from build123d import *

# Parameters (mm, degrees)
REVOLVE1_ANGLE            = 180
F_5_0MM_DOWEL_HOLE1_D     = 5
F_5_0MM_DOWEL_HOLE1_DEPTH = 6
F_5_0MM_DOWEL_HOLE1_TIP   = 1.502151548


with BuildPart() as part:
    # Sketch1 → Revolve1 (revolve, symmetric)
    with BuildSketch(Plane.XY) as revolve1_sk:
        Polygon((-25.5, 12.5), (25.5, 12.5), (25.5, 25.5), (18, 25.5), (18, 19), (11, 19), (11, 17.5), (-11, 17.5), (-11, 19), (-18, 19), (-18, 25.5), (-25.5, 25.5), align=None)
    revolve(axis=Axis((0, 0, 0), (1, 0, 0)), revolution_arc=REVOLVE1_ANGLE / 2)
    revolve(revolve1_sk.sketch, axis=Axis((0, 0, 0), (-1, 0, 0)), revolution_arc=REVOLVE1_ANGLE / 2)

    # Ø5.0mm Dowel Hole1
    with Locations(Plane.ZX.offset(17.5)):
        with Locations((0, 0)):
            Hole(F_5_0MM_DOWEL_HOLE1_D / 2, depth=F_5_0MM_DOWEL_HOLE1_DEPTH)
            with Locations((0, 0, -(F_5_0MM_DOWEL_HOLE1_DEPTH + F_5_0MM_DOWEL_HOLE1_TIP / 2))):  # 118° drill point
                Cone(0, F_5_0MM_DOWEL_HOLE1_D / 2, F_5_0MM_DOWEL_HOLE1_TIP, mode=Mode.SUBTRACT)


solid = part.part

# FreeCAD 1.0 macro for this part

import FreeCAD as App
import Part
import Sketcher

V = App.Vector

doc = App.newDocument("Part")
body = doc.addObject("PartDesign::Body", "Body")

# Sketch on XY plane
sketch1 = body.newObject("Sketcher::SketchObject", "Sketch")
sketch1.AttachmentSupport = (doc.getObject("XY_Plane"), [""])
sketch1.MapMode = "FlatFace"
sketch1.addGeometry(Part.LineSegment(V(-25.5, 12.5, 0), V(25.5, 12.5, 0)), False)
sketch1.addGeometry(Part.LineSegment(V(25.5, 12.5, 0), V(25.5, 25.5, 0)), False)
sketch1.addGeometry(Part.LineSegment(V(25.5, 25.5, 0), V(18, 25.5, 0)), False)
sketch1.addGeometry(Part.LineSegment(V(18, 25.5, 0), V(18, 19, 0)), False)
sketch1.addGeometry(Part.LineSegment(V(18, 19, 0), V(11, 19, 0)), False)
sketch1.addGeometry(Part.LineSegment(V(11, 19, 0), V(11, 17.5, 0)), False)
sketch1.addGeometry(Part.LineSegment(V(11, 17.5, 0), V(-11, 17.5, 0)), False)
sketch1.addGeometry(Part.LineSegment(V(-11, 17.5, 0), V(-11, 19, 0)), False)
sketch1.addGeometry(Part.LineSegment(V(-11, 19, 0), V(-18, 19, 0)), False)
sketch1.addGeometry(Part.LineSegment(V(-18, 19, 0), V(-18, 25.5, 0)), False)
sketch1.addGeometry(Part.LineSegment(V(-18, 25.5, 0), V(-25.5, 25.5, 0)), False)
sketch1.addGeometry(Part.LineSegment(V(-25.5, 25.5, 0), V(-25.5, 12.5, 0)), False)
sketch1.addConstraint(Sketcher.Constraint("Coincident", 0, 2, 1, 1))
sketch1.addConstraint(Sketcher.Constraint("Coincident", 1, 2, 2, 1))
sketch1.addConstraint(Sketcher.Constraint("Coincident", 2, 2, 3, 1))
sketch1.addConstraint(Sketcher.Constraint("Coincident", 3, 2, 4, 1))
sketch1.addConstraint(Sketcher.Constraint("Coincident", 4, 2, 5, 1))
sketch1.addConstraint(Sketcher.Constraint("Coincident", 5, 2, 6, 1))
sketch1.addConstraint(Sketcher.Constraint("Coincident", 6, 2, 7, 1))
sketch1.addConstraint(Sketcher.Constraint("Coincident", 7, 2, 8, 1))
sketch1.addConstraint(Sketcher.Constraint("Coincident", 8, 2, 9, 1))
sketch1.addConstraint(Sketcher.Constraint("Coincident", 9, 2, 10, 1))
sketch1.addConstraint(Sketcher.Constraint("Coincident", 10, 2, 11, 1))
sketch1.addConstraint(Sketcher.Constraint("Coincident", 11, 2, 0, 1))
sketch1.addConstraint(Sketcher.Constraint("Horizontal", 0))
sketch1.addConstraint(Sketcher.Constraint("Vertical", 1))
sketch1.addConstraint(Sketcher.Constraint("Horizontal", 2))
sketch1.addConstraint(Sketcher.Constraint("Vertical", 3))
sketch1.addConstraint(Sketcher.Constraint("Horizontal", 4))
sketch1.addConstraint(Sketcher.Constraint("Vertical", 5))
sketch1.addConstraint(Sketcher.Constraint("Horizontal", 6))
sketch1.addConstraint(Sketcher.Constraint("Vertical", 7))
sketch1.addConstraint(Sketcher.Constraint("Horizontal", 8))
sketch1.addConstraint(Sketcher.Constraint("Vertical", 9))
sketch1.addConstraint(Sketcher.Constraint("Horizontal", 10))
sketch1.addConstraint(Sketcher.Constraint("Vertical", 11))
sketch1.addConstraint(Sketcher.Constraint("Symmetric", 4, 2, 7, 2, -2))
sketch1.addConstraint(Sketcher.Constraint("Symmetric", 2, 2, 9, 2, -2))
sketch1.addConstraint(Sketcher.Constraint("Equal", 2, 10))
sketch1.addConstraint(Sketcher.Constraint("DistanceX", 0, 1, 0, 2, 51.0))
sketch1.addConstraint(Sketcher.Constraint("DistanceX", 4, 2, 4, 1, 7.0))
sketch1.addConstraint(Sketcher.Constraint("DistanceX", 6, 2, 6, 1, 22.0))
sketch1.addConstraint(Sketcher.Constraint("DistanceY", 1, 1, 1, 2, 13.0))
sketch1.addConstraint(Sketcher.Constraint("DistanceY", 3, 2, 3, 1, 6.5))
sketch1.addConstraint(Sketcher.Constraint("DistanceY", 5, 2, 5, 1, 1.5))
sketch1.addConstraint(Sketcher.Constraint("DistanceY", -1, 1, 3, 2, 19.0))
revolution = body.newObject("PartDesign::Revolution", "Revolution")
revolution.Profile = sketch1
revolution.ReferenceAxis = (sketch1, ["H_Axis"])
revolution.Angle = 90

# Sketch on XY plane
sketch2 = body.newObject("Sketcher::SketchObject", "Sketch001")
sketch2.AttachmentSupport = (doc.getObject("XY_Plane"), [""])
sketch2.MapMode = "FlatFace"
sketch2.addGeometry(Part.LineSegment(V(-25.5, 12.5, 0), V(25.5, 12.5, 0)), False)
sketch2.addGeometry(Part.LineSegment(V(25.5, 12.5, 0), V(25.5, 25.5, 0)), False)
sketch2.addGeometry(Part.LineSegment(V(25.5, 25.5, 0), V(18, 25.5, 0)), False)
sketch2.addGeometry(Part.LineSegment(V(18, 25.5, 0), V(18, 19, 0)), False)
sketch2.addGeometry(Part.LineSegment(V(18, 19, 0), V(11, 19, 0)), False)
sketch2.addGeometry(Part.LineSegment(V(11, 19, 0), V(11, 17.5, 0)), False)
sketch2.addGeometry(Part.LineSegment(V(11, 17.5, 0), V(-11, 17.5, 0)), False)
sketch2.addGeometry(Part.LineSegment(V(-11, 17.5, 0), V(-11, 19, 0)), False)
sketch2.addGeometry(Part.LineSegment(V(-11, 19, 0), V(-18, 19, 0)), False)
sketch2.addGeometry(Part.LineSegment(V(-18, 19, 0), V(-18, 25.5, 0)), False)
sketch2.addGeometry(Part.LineSegment(V(-18, 25.5, 0), V(-25.5, 25.5, 0)), False)
sketch2.addGeometry(Part.LineSegment(V(-25.5, 25.5, 0), V(-25.5, 12.5, 0)), False)
sketch2.addConstraint(Sketcher.Constraint("Coincident", 0, 2, 1, 1))
sketch2.addConstraint(Sketcher.Constraint("Coincident", 1, 2, 2, 1))
sketch2.addConstraint(Sketcher.Constraint("Coincident", 2, 2, 3, 1))
sketch2.addConstraint(Sketcher.Constraint("Coincident", 3, 2, 4, 1))
sketch2.addConstraint(Sketcher.Constraint("Coincident", 4, 2, 5, 1))
sketch2.addConstraint(Sketcher.Constraint("Coincident", 5, 2, 6, 1))
sketch2.addConstraint(Sketcher.Constraint("Coincident", 6, 2, 7, 1))
sketch2.addConstraint(Sketcher.Constraint("Coincident", 7, 2, 8, 1))
sketch2.addConstraint(Sketcher.Constraint("Coincident", 8, 2, 9, 1))
sketch2.addConstraint(Sketcher.Constraint("Coincident", 9, 2, 10, 1))
sketch2.addConstraint(Sketcher.Constraint("Coincident", 10, 2, 11, 1))
sketch2.addConstraint(Sketcher.Constraint("Coincident", 11, 2, 0, 1))
sketch2.addConstraint(Sketcher.Constraint("Horizontal", 0))
sketch2.addConstraint(Sketcher.Constraint("Vertical", 1))
sketch2.addConstraint(Sketcher.Constraint("Horizontal", 2))
sketch2.addConstraint(Sketcher.Constraint("Vertical", 3))
sketch2.addConstraint(Sketcher.Constraint("Horizontal", 4))
sketch2.addConstraint(Sketcher.Constraint("Vertical", 5))
sketch2.addConstraint(Sketcher.Constraint("Horizontal", 6))
sketch2.addConstraint(Sketcher.Constraint("Vertical", 7))
sketch2.addConstraint(Sketcher.Constraint("Horizontal", 8))
sketch2.addConstraint(Sketcher.Constraint("Vertical", 9))
sketch2.addConstraint(Sketcher.Constraint("Horizontal", 10))
sketch2.addConstraint(Sketcher.Constraint("Vertical", 11))
sketch2.addConstraint(Sketcher.Constraint("Symmetric", 4, 2, 7, 2, -2))
sketch2.addConstraint(Sketcher.Constraint("Symmetric", 2, 2, 9, 2, -2))
sketch2.addConstraint(Sketcher.Constraint("Equal", 2, 10))
sketch2.addConstraint(Sketcher.Constraint("DistanceX", 0, 1, 0, 2, 51.0))
sketch2.addConstraint(Sketcher.Constraint("DistanceX", 4, 2, 4, 1, 7.0))
sketch2.addConstraint(Sketcher.Constraint("DistanceX", 6, 2, 6, 1, 22.0))
sketch2.addConstraint(Sketcher.Constraint("DistanceY", 1, 1, 1, 2, 13.0))
sketch2.addConstraint(Sketcher.Constraint("DistanceY", 3, 2, 3, 1, 6.5))
sketch2.addConstraint(Sketcher.Constraint("DistanceY", 5, 2, 5, 1, 1.5))
sketch2.addConstraint(Sketcher.Constraint("DistanceY", -1, 1, 3, 2, 19.0))
revolution2 = body.newObject("PartDesign::Revolution", "Revolution001")
revolution2.Profile = sketch2
revolution2.ReferenceAxis = (sketch2, ["H_Axis"])
revolution2.Angle = 90
revolution2.Reversed = True

# Sketch on XZ plane
sketch3 = body.newObject("Sketcher::SketchObject", "Sketch002")
sketch3.AttachmentSupport = (doc.getObject("XZ_Plane"), [""])
sketch3.MapMode = "FlatFace"
sketch3.AttachmentOffset = App.Placement(V(0, 0, -17.5), App.Rotation())
sketch3.addGeometry(Part.Circle(V(0, 0, 0), V(0, 0, 1), 2.5), False)
sketch3.addConstraint(Sketcher.Constraint("Coincident", 0, 3, -1, 1))
sketch3.addConstraint(Sketcher.Constraint("Diameter", 0, 5.0))
doc.recompute()
hole = body.newObject("PartDesign::Hole", "Hole")
hole.Profile = sketch3
hole.ThreadType = "None"
hole.Diameter = 5
hole.DepthType = "Dimension"
hole.Depth = 6
hole.DrillPoint = "Angled"
hole.DrillPointAngle = 118
hole.Reversed = True

doc.recompute()
